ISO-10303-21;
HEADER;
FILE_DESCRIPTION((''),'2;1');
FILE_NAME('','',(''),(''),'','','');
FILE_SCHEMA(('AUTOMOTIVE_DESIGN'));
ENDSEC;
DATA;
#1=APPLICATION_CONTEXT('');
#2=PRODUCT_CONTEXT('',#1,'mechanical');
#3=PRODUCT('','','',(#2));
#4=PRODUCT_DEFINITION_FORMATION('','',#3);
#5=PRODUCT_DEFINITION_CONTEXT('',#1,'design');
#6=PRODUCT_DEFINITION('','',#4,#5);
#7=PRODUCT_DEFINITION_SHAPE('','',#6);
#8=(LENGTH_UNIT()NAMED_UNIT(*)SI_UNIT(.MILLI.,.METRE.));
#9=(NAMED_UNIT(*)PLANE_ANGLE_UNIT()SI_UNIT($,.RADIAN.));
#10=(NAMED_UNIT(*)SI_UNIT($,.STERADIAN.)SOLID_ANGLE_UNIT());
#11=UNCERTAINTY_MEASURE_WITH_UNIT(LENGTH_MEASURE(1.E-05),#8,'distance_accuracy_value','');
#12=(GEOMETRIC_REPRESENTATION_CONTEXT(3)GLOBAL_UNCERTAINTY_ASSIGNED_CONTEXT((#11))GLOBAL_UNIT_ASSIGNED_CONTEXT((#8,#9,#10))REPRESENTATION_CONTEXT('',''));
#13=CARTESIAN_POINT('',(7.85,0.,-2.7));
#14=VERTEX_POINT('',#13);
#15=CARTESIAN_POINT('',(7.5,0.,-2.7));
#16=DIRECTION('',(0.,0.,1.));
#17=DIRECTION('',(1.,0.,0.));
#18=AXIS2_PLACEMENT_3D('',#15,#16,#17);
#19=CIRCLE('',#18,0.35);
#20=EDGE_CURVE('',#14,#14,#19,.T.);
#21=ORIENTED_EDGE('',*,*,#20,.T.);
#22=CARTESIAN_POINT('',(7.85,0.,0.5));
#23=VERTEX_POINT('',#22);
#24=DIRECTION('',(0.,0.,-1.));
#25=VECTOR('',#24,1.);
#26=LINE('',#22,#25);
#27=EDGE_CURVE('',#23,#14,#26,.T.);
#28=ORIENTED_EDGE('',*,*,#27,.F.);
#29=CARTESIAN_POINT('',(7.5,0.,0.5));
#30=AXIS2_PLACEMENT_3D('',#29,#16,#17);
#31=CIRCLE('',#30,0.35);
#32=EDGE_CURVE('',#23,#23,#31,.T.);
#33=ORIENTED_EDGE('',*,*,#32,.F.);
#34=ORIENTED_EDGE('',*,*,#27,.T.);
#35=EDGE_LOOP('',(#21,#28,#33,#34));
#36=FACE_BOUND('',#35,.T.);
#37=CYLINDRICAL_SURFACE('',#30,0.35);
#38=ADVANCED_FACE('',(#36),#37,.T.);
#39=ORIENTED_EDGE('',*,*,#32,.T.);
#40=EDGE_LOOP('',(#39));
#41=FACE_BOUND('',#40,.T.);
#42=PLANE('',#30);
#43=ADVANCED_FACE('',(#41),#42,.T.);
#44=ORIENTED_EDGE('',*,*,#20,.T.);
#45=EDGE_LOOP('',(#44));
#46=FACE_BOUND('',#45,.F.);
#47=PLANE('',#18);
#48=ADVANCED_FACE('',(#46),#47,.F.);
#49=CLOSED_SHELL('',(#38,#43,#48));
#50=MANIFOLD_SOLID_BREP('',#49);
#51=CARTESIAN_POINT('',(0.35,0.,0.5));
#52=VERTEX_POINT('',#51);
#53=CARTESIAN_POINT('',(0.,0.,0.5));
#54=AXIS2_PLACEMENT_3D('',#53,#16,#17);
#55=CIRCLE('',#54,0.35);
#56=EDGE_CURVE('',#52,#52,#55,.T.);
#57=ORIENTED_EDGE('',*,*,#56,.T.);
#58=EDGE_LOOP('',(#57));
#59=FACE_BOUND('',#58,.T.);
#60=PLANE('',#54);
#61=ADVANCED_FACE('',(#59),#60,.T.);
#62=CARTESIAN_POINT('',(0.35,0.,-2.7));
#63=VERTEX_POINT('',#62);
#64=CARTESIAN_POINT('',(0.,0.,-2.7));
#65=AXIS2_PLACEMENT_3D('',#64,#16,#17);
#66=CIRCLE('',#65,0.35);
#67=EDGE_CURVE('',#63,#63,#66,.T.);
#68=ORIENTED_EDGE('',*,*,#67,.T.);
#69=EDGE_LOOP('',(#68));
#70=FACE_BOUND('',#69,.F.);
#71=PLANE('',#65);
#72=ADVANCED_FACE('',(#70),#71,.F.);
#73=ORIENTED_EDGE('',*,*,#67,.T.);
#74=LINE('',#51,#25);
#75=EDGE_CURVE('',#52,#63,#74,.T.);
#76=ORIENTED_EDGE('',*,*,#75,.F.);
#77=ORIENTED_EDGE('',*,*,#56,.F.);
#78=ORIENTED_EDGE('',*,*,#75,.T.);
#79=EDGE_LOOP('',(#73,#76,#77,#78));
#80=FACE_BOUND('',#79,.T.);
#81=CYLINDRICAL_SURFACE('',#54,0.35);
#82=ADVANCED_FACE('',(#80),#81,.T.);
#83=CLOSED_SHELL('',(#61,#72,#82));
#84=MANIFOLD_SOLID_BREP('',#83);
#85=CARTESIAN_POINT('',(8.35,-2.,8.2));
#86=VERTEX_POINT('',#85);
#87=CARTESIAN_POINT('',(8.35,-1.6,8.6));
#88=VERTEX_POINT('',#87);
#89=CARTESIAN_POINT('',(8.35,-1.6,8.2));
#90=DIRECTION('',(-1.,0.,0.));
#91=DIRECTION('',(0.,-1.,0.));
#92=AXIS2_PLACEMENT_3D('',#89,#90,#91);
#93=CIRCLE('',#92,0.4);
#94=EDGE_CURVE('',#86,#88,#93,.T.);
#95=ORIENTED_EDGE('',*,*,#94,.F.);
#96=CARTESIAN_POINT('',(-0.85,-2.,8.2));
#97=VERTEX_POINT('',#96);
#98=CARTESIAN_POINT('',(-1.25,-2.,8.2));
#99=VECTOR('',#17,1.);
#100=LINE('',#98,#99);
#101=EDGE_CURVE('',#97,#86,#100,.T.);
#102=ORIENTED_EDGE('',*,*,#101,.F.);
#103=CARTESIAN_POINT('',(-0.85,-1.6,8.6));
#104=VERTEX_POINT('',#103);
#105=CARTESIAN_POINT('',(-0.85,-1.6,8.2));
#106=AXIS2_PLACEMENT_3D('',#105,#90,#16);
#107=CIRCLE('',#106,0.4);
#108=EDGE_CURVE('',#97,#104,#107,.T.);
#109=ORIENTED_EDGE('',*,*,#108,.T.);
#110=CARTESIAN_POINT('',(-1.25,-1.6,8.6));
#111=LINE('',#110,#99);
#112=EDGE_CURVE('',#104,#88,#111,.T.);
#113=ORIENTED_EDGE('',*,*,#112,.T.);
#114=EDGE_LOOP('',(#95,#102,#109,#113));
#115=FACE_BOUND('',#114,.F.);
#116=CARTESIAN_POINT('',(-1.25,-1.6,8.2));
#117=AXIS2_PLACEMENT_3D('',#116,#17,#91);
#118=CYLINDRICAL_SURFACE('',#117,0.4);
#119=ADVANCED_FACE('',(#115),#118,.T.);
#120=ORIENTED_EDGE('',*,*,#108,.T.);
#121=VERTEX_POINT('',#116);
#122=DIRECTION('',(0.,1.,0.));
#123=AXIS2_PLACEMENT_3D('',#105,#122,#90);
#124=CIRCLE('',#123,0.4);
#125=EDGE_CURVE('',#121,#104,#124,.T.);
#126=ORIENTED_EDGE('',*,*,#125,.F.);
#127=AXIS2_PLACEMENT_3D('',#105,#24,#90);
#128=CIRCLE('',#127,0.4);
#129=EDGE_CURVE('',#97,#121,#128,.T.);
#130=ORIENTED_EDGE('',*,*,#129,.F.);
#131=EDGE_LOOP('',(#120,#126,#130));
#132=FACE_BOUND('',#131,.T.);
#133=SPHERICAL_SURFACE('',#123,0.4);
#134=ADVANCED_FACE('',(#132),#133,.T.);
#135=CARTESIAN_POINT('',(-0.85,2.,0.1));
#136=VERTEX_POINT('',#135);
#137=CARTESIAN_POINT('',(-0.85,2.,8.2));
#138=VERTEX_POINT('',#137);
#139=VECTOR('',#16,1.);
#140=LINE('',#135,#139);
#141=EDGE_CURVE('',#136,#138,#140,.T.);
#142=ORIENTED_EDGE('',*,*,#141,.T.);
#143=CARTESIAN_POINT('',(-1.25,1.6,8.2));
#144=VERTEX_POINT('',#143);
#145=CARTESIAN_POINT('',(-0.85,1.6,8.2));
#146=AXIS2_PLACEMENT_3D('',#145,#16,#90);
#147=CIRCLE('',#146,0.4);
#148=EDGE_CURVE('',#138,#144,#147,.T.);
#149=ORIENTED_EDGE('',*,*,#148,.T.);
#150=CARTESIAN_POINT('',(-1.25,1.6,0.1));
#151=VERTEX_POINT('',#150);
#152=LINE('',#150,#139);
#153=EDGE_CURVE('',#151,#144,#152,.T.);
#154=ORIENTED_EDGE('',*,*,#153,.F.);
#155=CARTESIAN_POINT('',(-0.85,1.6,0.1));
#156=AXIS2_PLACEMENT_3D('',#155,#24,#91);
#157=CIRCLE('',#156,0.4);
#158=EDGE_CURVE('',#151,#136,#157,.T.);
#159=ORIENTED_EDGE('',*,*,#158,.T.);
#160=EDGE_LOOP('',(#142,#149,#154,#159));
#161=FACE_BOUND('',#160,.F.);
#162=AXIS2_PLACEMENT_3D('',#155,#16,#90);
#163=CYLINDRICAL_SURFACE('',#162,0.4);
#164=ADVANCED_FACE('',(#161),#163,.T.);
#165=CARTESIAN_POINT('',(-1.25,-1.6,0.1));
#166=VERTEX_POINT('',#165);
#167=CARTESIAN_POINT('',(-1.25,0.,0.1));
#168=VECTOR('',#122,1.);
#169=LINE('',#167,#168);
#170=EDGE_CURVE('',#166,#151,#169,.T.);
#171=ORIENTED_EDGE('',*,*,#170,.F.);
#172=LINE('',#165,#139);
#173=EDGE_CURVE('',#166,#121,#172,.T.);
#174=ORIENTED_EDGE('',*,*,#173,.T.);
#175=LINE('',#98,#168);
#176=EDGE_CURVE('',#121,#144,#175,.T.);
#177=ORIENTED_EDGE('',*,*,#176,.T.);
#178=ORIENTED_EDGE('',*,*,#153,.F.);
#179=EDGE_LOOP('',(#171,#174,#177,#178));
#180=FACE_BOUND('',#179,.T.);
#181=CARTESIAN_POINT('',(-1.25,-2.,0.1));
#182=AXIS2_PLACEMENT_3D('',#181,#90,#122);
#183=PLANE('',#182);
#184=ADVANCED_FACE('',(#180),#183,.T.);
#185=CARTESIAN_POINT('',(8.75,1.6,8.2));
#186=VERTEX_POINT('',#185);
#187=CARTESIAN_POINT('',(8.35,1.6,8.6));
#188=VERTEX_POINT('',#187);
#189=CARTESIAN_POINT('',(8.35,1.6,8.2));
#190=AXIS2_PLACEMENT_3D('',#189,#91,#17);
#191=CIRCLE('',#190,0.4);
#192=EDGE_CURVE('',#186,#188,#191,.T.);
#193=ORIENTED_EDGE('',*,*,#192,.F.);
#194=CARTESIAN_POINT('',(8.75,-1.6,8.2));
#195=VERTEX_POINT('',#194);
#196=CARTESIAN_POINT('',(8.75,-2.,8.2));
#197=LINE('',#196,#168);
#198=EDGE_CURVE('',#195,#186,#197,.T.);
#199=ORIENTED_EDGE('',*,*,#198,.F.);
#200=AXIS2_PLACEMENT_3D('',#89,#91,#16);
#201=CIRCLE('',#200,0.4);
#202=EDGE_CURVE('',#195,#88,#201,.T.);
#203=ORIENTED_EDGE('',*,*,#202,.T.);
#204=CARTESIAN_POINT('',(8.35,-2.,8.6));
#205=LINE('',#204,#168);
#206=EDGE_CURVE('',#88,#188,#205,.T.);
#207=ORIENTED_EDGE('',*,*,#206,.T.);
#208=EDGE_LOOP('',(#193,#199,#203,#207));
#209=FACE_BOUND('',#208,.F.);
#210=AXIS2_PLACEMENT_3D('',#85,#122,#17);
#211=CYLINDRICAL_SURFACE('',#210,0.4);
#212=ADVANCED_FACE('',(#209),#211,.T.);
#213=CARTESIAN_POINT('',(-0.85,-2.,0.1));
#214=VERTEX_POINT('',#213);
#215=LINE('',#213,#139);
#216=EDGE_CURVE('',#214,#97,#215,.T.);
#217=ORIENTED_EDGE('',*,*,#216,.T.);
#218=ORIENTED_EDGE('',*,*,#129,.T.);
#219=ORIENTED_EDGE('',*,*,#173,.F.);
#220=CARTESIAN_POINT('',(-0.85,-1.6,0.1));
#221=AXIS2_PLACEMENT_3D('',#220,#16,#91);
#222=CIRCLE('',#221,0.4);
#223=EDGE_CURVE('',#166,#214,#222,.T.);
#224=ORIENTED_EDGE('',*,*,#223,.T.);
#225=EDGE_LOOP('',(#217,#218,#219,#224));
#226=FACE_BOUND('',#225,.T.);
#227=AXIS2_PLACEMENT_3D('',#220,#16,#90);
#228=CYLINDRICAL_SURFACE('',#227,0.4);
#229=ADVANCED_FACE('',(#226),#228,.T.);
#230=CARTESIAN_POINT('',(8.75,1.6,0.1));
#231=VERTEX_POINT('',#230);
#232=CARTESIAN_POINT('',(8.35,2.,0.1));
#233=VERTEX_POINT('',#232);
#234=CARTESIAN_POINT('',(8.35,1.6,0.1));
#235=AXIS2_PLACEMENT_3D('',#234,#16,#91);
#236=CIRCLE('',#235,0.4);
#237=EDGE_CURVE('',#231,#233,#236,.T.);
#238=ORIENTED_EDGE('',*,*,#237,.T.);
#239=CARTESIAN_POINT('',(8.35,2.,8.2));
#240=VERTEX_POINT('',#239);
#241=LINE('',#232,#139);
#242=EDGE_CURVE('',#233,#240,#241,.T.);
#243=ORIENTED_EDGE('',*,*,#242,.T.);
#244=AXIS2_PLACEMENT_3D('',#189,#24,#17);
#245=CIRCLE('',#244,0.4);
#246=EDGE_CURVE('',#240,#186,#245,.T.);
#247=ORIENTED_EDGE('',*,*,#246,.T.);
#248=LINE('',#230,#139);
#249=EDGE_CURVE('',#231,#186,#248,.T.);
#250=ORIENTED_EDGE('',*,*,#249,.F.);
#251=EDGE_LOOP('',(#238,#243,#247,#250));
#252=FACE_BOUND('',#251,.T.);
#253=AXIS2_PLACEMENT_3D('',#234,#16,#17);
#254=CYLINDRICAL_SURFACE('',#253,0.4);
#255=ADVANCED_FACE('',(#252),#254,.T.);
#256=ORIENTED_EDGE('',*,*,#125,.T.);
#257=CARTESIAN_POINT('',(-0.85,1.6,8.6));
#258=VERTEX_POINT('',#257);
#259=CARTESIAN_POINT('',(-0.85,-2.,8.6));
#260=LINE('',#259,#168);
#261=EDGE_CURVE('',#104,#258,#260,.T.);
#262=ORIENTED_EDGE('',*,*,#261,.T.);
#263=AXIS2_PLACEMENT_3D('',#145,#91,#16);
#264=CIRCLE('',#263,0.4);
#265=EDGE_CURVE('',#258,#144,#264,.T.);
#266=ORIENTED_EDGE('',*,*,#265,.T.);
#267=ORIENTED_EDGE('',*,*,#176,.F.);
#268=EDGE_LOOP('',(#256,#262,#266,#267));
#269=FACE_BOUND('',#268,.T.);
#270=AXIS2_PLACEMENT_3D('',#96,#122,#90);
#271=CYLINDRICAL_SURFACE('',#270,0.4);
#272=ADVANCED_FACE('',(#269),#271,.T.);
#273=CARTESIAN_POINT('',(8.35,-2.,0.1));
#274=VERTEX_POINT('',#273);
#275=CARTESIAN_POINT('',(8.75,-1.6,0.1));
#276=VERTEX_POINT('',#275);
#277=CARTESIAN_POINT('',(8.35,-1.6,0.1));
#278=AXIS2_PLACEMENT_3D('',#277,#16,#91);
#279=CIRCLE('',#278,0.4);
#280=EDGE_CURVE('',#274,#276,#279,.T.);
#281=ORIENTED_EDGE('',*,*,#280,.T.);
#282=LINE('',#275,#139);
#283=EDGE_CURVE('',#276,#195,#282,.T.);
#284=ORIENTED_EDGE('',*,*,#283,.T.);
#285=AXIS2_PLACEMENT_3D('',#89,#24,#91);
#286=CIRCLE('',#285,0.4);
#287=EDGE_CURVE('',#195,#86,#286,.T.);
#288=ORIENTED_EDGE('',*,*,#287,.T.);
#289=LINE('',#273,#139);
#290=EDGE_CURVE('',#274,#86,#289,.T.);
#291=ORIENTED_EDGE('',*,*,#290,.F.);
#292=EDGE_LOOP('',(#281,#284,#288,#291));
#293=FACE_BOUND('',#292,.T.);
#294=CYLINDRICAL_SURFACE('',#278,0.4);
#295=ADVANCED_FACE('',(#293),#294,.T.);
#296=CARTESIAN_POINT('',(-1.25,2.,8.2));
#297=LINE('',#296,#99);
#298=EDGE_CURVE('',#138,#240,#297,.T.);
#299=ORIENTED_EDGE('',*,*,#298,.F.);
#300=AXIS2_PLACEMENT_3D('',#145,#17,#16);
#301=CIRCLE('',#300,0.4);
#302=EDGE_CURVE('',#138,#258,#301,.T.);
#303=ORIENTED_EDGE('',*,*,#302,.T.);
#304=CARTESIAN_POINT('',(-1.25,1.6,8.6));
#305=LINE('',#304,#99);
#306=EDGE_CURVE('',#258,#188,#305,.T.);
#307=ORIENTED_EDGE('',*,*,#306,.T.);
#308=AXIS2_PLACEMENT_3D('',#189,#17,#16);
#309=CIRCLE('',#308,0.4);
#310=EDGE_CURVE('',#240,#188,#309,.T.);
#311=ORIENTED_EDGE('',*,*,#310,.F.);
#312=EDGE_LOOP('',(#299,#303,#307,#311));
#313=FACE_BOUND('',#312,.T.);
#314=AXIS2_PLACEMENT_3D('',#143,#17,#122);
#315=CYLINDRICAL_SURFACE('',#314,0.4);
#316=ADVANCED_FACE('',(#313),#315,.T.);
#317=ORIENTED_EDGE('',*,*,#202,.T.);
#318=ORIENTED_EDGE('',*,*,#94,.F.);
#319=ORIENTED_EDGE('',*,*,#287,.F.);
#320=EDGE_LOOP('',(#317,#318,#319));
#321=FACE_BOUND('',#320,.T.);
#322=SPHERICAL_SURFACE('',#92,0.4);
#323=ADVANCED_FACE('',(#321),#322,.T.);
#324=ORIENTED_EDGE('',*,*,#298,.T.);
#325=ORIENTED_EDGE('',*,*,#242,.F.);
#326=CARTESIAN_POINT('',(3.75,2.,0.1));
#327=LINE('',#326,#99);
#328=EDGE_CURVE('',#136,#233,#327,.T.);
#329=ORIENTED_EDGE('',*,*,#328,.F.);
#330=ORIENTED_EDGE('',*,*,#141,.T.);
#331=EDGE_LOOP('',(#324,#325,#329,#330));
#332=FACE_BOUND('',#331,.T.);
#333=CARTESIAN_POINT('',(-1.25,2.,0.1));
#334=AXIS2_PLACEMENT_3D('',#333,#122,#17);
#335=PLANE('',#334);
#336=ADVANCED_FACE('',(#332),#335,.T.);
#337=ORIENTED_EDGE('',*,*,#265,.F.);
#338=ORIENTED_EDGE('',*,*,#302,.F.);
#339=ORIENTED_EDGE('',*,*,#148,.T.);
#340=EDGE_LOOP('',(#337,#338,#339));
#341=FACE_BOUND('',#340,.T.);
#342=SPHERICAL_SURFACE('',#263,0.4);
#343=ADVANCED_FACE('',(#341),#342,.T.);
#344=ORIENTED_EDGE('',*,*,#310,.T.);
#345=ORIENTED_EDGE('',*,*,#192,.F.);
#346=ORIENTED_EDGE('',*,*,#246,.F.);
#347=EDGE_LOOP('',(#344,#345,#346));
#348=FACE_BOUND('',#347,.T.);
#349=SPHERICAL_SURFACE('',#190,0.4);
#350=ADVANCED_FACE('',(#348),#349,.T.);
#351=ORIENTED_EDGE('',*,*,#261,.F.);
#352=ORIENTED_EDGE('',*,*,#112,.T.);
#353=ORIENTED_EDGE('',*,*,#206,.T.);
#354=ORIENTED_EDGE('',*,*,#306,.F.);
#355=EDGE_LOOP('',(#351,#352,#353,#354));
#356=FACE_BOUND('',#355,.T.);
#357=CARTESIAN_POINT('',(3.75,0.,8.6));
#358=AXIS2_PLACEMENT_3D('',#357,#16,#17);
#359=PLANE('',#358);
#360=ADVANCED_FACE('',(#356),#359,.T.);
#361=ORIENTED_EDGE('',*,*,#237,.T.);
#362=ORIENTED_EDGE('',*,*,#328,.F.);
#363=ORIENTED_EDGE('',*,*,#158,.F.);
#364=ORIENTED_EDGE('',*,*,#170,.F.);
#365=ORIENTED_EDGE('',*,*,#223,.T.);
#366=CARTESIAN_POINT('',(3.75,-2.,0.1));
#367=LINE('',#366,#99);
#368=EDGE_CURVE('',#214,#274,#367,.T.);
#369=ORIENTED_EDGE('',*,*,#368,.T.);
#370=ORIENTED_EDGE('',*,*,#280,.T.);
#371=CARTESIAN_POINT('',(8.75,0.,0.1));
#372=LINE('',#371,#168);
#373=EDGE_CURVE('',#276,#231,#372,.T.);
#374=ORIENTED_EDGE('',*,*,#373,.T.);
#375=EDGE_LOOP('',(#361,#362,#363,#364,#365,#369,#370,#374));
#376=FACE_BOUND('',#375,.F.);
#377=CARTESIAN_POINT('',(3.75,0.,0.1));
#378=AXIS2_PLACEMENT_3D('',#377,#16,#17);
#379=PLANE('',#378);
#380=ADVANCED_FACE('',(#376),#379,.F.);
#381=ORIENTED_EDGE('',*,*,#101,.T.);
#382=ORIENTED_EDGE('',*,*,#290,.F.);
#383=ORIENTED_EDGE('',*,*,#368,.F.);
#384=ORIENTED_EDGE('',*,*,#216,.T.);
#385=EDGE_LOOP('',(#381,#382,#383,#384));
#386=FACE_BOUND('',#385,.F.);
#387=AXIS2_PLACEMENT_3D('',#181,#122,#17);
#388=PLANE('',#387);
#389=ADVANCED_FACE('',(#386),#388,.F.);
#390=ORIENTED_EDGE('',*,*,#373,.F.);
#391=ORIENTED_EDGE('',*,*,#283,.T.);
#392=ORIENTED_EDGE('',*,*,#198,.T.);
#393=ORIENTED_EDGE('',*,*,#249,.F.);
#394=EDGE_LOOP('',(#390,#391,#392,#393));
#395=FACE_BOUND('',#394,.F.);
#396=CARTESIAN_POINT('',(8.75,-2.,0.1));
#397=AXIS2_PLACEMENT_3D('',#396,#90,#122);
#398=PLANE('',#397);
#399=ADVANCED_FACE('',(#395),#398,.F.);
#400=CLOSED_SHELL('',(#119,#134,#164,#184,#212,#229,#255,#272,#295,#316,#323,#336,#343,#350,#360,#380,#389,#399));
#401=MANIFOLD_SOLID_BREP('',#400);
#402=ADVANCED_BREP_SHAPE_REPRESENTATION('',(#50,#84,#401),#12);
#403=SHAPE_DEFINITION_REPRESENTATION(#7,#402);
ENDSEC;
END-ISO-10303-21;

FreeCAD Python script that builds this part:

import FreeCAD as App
import Part
import Sketcher


def edges_at(feature, points):
    """Names of the edges that pass closest to the given points."""
    edges = feature.Shape.Edges
    near = lambda p: min(range(len(edges)), key=lambda i: edges[i].distToShape(Part.Vertex(*p))[0])
    return sorted({f"Edge{near(p) + 1}" for p in points})


def add_polygon(sketch, points):
    """Adds a closed chain of lines whose ends are joined by coincident constraints."""
    first, n = sketch.GeometryCount, len(points)
    for a, b in zip(points, points[1:] + points[:1]):
        sketch.addGeometry(Part.LineSegment(App.Vector(*a, 0), App.Vector(*b, 0)), False)
    for i in range(n):
        sketch.addConstraint(Sketcher.Constraint("Coincident", first + i, 2, first + (i + 1) % n, 1))

doc = App.newDocument("Part")
params = doc.addObject("Spreadsheet::Sheet", "Params")
for row, (alias, value) in enumerate([
    ("sketch1_width", "10 mm"),
    ("sketch1_height", "4 mm"),
    ("pad1_length", "8.5 mm"),
    ("fillet_radius", "0.4 mm"),
    ("sketch2_diameter", "0.7 mm"),
    ("pad2_length", "3.2 mm"),
], start=1):
    params.set(f"A{row}", alias)
    params.set(f"B{row}", "=" + value)
    params.setAlias(f"B{row}", alias)

body = doc.addObject("PartDesign::Body", "Body")

# Sketch on XY plane
sketch1 = doc.addObject("Sketcher::SketchObject", "Sketch")
body.addObject(sketch1)
sketch1.AttachmentSupport = (doc.XY_Plane, [""])
sketch1.MapMode = "FlatFace"
sketch1.AttachmentOffset = App.Placement(App.Vector(0, 0, 0.1), App.Rotation())
add_polygon(sketch1, [(-1.25, 2), (-1.25, -2), (8.75, -2), (8.75, 2)])  # lines 0-3
sketch1.addConstraint([
    Sketcher.Constraint("Vertical", 0),
    Sketcher.Constraint("Horizontal", 1),
    Sketcher.Constraint("Vertical", 2),
    Sketcher.Constraint("Horizontal", 3),
    Sketcher.Constraint("DistanceX", 1, 1, 1, 2, 10.0),
    Sketcher.Constraint("DistanceY", 0, 2, 0, 1, 4.0),
    Sketcher.Constraint("DistanceY", 0, 2, -1, 1, 2.0),
    Sketcher.Constraint("DistanceX", 0, 2, -1, 1, 1.25),
])
sketch1.setExpression("Constraints[8]", "Params.sketch1_width")
sketch1.setExpression("Constraints[9]", "Params.sketch1_height")
pad1 = doc.addObject("PartDesign::Pad", "Pad")
body.addObject(pad1)
pad1.Profile = sketch1
pad1.setExpression("Length", "Params.pad1_length")
doc.recompute()

fillet = doc.addObject("PartDesign::Fillet", "Fillet")
body.addObject(fillet)
fillet.Base = (pad1, edges_at(pad1, [
    (-1.25, 0, 8.6),
    (-1.25, -2, 4.35),
    (3.75, -2, 8.6),
    (8.75, -2, 4.35),
    (8.75, 0, 8.6),
    (8.75, 2, 4.35),
    (3.75, 2, 8.6),
    (-1.25, 2, 4.35),
]))
fillet.setExpression("Radius", "Params.fillet_radius")
body2 = doc.addObject("PartDesign::Body", "Body001")
body2.AllowCompound = True

# Sketch on XY plane
sketch2 = doc.addObject("Sketcher::SketchObject", "Sketch001")
body2.addObject(sketch2)
sketch2.AttachmentSupport = (doc.getObject("XY_Plane001"), [""])
sketch2.MapMode = "FlatFace"
sketch2.AttachmentOffset = App.Placement(App.Vector(0, 0, 0.5), App.Rotation())
sketch2.addGeometry([
    Part.Circle(App.Vector(0, 0, 0), App.Vector(0, 0, 1), 0.35),
    Part.Circle(App.Vector(7.5, 0, 0), App.Vector(0, 0, 1), 0.35),
], False)
sketch2.addConstraint([
    Sketcher.Constraint("Coincident", 0, 3, -1, 1),
    Sketcher.Constraint("Equal", 0, 1),
    Sketcher.Constraint("PointOnObject", 1, 3, -1),
    Sketcher.Constraint("Diameter", 0, 0.7),
    Sketcher.Constraint("DistanceX", -1, 1, 1, 3, 7.5),
])
sketch2.setExpression("Constraints[3]", "Params.sketch2_diameter")
pad2 = doc.addObject("PartDesign::Pad", "Pad001")
body2.addObject(pad2)
pad2.Profile = sketch2
pad2.setExpression("Length", "Params.pad2_length")
pad2.Reversed = True

doc.recompute()
